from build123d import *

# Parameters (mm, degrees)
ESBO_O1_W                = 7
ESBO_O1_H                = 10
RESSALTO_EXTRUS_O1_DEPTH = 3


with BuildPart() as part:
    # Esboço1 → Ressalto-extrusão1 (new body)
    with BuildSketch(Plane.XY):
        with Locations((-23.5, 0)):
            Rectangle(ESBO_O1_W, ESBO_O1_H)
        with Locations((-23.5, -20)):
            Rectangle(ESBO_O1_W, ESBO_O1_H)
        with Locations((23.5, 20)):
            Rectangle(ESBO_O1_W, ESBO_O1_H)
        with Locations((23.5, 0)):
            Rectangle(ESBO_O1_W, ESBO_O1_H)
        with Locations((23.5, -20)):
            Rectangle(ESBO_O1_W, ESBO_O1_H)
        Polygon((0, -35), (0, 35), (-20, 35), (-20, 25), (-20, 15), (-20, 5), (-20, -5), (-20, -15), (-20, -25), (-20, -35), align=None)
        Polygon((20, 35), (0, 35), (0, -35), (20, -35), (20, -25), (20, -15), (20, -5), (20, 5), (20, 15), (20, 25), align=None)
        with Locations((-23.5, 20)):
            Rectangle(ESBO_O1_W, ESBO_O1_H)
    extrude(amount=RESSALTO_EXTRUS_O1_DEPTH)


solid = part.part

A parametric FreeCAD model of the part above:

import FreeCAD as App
import Part
import Sketcher
from FreeCAD import Vector
Q = App.Units.Quantity

doc = App.newDocument("Part")
body = doc.addObject("PartDesign::Body", "Body")

sketch1 = doc.addObject("Sketcher::SketchObject", "Sketch")
body.addObject(sketch1)
sketch1.AttachmentSupport = (doc.XY_Plane, [""])
sketch1.MapMode = "FlatFace"
sketch1.addGeometry(Part.LineSegment(Vector(-27, 5, 0), Vector(-27, -5, 0)), False)
sketch1.addGeometry(Part.LineSegment(Vector(-27, -5, 0), Vector(-20, -5, 0)), False)
sketch1.addGeometry(Part.LineSegment(Vector(-20, -5, 0), Vector(-20, -15, 0)), False)
sketch1.addGeometry(Part.LineSegment(Vector(-20, -15, 0), Vector(-27, -15, 0)), False)
sketch1.addGeometry(Part.LineSegment(Vector(-27, -15, 0), Vector(-27, -25, 0)), False)
sketch1.addGeometry(Part.LineSegment(Vector(-27, -25, 0), Vector(-20, -25, 0)), False)
sketch1.addGeometry(Part.LineSegment(Vector(-20, -25, 0), Vector(-20, -35, 0)), False)
sketch1.addGeometry(Part.LineSegment(Vector(-20, -35, 0), Vector(20, -35, 0)), False)
sketch1.addGeometry(Part.LineSegment(Vector(20, -35, 0), Vector(20, -25, 0)), False)
sketch1.addGeometry(Part.LineSegment(Vector(20, -25, 0), Vector(27, -25, 0)), False)
sketch1.addGeometry(Part.LineSegment(Vector(27, -25, 0), Vector(27, -15, 0)), False)
sketch1.addGeometry(Part.LineSegment(Vector(27, -15, 0), Vector(20, -15, 0)), False)
sketch1.addGeometry(Part.LineSegment(Vector(20, -15, 0), Vector(20, -5, 0)), False)
sketch1.addGeometry(Part.LineSegment(Vector(20, -5, 0), Vector(27, -5, 0)), False)
sketch1.addGeometry(Part.LineSegment(Vector(27, -5, 0), Vector(27, 5, 0)), False)
sketch1.addGeometry(Part.LineSegment(Vector(27, 5, 0), Vector(20, 5, 0)), False)
sketch1.addGeometry(Part.LineSegment(Vector(20, 5, 0), Vector(20, 15, 0)), False)
sketch1.addGeometry(Part.LineSegment(Vector(20, 15, 0), Vector(27, 15, 0)), False)
sketch1.addGeometry(Part.LineSegment(Vector(27, 15, 0), Vector(27, 25, 0)), False)
sketch1.addGeometry(Part.LineSegment(Vector(27, 25, 0), Vector(20, 25, 0)), False)
sketch1.addGeometry(Part.LineSegment(Vector(20, 25, 0), Vector(20, 35, 0)), False)
sketch1.addGeometry(Part.LineSegment(Vector(20, 35, 0), Vector(-20, 35, 0)), False)
sketch1.addGeometry(Part.LineSegment(Vector(-20, 35, 0), Vector(-20, 25, 0)), False)
sketch1.addGeometry(Part.LineSegment(Vector(-20, 25, 0), Vector(-27, 25, 0)), False)
sketch1.addGeometry(Part.LineSegment(Vector(-27, 25, 0), Vector(-27, 15, 0)), False)
sketch1.addGeometry(Part.LineSegment(Vector(-27, 15, 0), Vector(-20, 15, 0)), False)
sketch1.addGeometry(Part.LineSegment(Vector(-20, 15, 0), Vector(-20, 5, 0)), False)
sketch1.addGeometry(Part.LineSegment(Vector(-20, 5, 0), Vector(-27, 5, 0)), False)
sketch1.addConstraint(Sketcher.Constraint("Coincident", 0, 2, 1, 1))
sketch1.addConstraint(Sketcher.Constraint("Coincident", 1, 2, 2, 1))
sketch1.addConstraint(Sketcher.Constraint("Coincident", 2, 2, 3, 1))
sketch1.addConstraint(Sketcher.Constraint("Coincident", 3, 2, 4, 1))
sketch1.addConstraint(Sketcher.Constraint("Coincident", 4, 2, 5, 1))
sketch1.addConstraint(Sketcher.Constraint("Coincident", 5, 2, 6, 1))
sketch1.addConstraint(Sketcher.Constraint("Coincident", 6, 2, 7, 1))
sketch1.addConstraint(Sketcher.Constraint("Coincident", 7, 2, 8, 1))
sketch1.addConstraint(Sketcher.Constraint("Coincident", 8, 2, 9, 1))
sketch1.addConstraint(Sketcher.Constraint("Coincident", 9, 2, 10, 1))
sketch1.addConstraint(Sketcher.Constraint("Coincident", 10, 2, 11, 1))
sketch1.addConstraint(Sketcher.Constraint("Coincident", 11, 2, 12, 1))
sketch1.addConstraint(Sketcher.Constraint("Coincident", 12, 2, 13, 1))
sketch1.addConstraint(Sketcher.Constraint("Coincident", 13, 2, 14, 1))
sketch1.addConstraint(Sketcher.Constraint("Coincident", 14, 2, 15, 1))
sketch1.addConstraint(Sketcher.Constraint("Coincident", 15, 2, 16, 1))
sketch1.addConstraint(Sketcher.Constraint("Coincident", 16, 2, 17, 1))
sketch1.addConstraint(Sketcher.Constraint("Coincident", 17, 2, 18, 1))
sketch1.addConstraint(Sketcher.Constraint("Coincident", 18, 2, 19, 1))
sketch1.addConstraint(Sketcher.Constraint("Coincident", 19, 2, 20, 1))
sketch1.addConstraint(Sketcher.Constraint("Coincident", 20, 2, 21, 1))
sketch1.addConstraint(Sketcher.Constraint("Coincident", 21, 2, 22, 1))
sketch1.addConstraint(Sketcher.Constraint("Coincident", 22, 2, 23, 1))
sketch1.addConstraint(Sketcher.Constraint("Coincident", 23, 2, 24, 1))
sketch1.addConstraint(Sketcher.Constraint("Coincident", 24, 2, 25, 1))
sketch1.addConstraint(Sketcher.Constraint("Coincident", 25, 2, 26, 1))
sketch1.addConstraint(Sketcher.Constraint("Coincident", 26, 2, 27, 1))
sketch1.addConstraint(Sketcher.Constraint("Coincident", 27, 2, 0, 1))
sketch1.addConstraint(Sketcher.Constraint("Vertical", 0))
sketch1.addConstraint(Sketcher.Constraint("Horizontal", 1))
sketch1.addConstraint(Sketcher.Constraint("Vertical", 2))
sketch1.addConstraint(Sketcher.Constraint("Horizontal", 3))
sketch1.addConstraint(Sketcher.Constraint("Vertical", 4))
sketch1.addConstraint(Sketcher.Constraint("Horizontal", 5))
sketch1.addConstraint(Sketcher.Constraint("Vertical", 6))
sketch1.addConstraint(Sketcher.Constraint("Horizontal", 7))
sketch1.addConstraint(Sketcher.Constraint("Vertical", 8))
sketch1.addConstraint(Sketcher.Constraint("Horizontal", 9))
sketch1.addConstraint(Sketcher.Constraint("Vertical", 10))
sketch1.addConstraint(Sketcher.Constraint("Horizontal", 11))
sketch1.addConstraint(Sketcher.Constraint("Vertical", 12))
sketch1.addConstraint(Sketcher.Constraint("Horizontal", 13))
sketch1.addConstraint(Sketcher.Constraint("Vertical", 14))
sketch1.addConstraint(Sketcher.Constraint("Horizontal", 15))
sketch1.addConstraint(Sketcher.Constraint("Vertical", 16))
sketch1.addConstraint(Sketcher.Constraint("Horizontal", 17))
sketch1.addConstraint(Sketcher.Constraint("Vertical", 18))
sketch1.addConstraint(Sketcher.Constraint("Horizontal", 19))
sketch1.addConstraint(Sketcher.Constraint("Vertical", 20))
sketch1.addConstraint(Sketcher.Constraint("Horizontal", 21))
sketch1.addConstraint(Sketcher.Constraint("Vertical", 22))
sketch1.addConstraint(Sketcher.Constraint("Horizontal", 23))
sketch1.addConstraint(Sketcher.Constraint("Vertical", 24))
sketch1.addConstraint(Sketcher.Constraint("Horizontal", 25))
sketch1.addConstraint(Sketcher.Constraint("Vertical", 26))
sketch1.addConstraint(Sketcher.Constraint("Horizontal", 27))
sketch1.addConstraint(Sketcher.Constraint("Symmetric", 0, 2, 14, 2, -1, 1))
sketch1.addConstraint(Sketcher.Constraint("Symmetric", 2, 2, 16, 2, -1, 1))
sketch1.addConstraint(Sketcher.Constraint("Symmetric", 4, 2, 18, 2, -1, 1))
sketch1.addConstraint(Sketcher.Constraint("Symmetric", 6, 2, 20, 2, -1, 1))
sketch1.addConstraint(Sketcher.Constraint("Symmetric", 8, 2, 22, 2, -1, 1))
sketch1.addConstraint(Sketcher.Constraint("Symmetric", 10, 2, 24, 2, -1, 1))
sketch1.addConstraint(Sketcher.Constraint("Symmetric", 12, 2, 26, 2, -1, 1))
sketch1.addConstraint(Sketcher.Constraint("Symmetric", 5, 2, 8, 2, -2))
sketch1.addConstraint(Sketcher.Constraint("Symmetric", 3, 2, 10, 2, -2))
sketch1.addConstraint(Sketcher.Constraint("Symmetric", 1, 2, 12, 2, -2))
sketch1.addConstraint(Sketcher.Constraint("Vertical", 0, 2, 3, 2))
sketch1.addConstraint(Sketcher.Constraint("Vertical", 2, 2, 5, 2))
sketch1.addConstraint(Sketcher.Constraint("Equal", 0, 2))
sketch1.addConstraint(Sketcher.Constraint("Equal", 2, 4))
sketch1.addConstraint(Sketcher.Constraint("Equal", 4, 6))
sketch1.addConstraint(Sketcher.Constraint("DistanceX", 1, 1, 1, 2, Q("7 mm")))
sketch1.addConstraint(Sketcher.Constraint("DistanceX", 7, 1, 7, 2, Q("40 mm")))
sketch1.addConstraint(Sketcher.Constraint("DistanceY", 0, 2, 0, 1, Q("10 mm")))
pad1 = doc.addObject("PartDesign::Pad", "Pad")
body.addObject(pad1)
pad1.Profile = sketch1
pad1.Length = 3

doc.recompute()
